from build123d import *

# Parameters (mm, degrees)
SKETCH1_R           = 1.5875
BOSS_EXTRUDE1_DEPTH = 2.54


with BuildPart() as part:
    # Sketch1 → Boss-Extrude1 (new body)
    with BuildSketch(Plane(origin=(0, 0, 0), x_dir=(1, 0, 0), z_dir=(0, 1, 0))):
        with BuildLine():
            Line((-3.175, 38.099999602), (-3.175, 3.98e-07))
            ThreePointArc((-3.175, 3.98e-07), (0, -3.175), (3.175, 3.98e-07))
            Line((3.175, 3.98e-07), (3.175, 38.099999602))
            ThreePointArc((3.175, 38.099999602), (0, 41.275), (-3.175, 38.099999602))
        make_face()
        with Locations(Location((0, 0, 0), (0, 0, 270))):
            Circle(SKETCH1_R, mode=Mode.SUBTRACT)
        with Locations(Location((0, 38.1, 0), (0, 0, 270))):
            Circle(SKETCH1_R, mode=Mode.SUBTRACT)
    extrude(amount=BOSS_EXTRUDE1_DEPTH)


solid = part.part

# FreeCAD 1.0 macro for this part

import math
import FreeCAD as App
import Part
import Sketcher
Q = App.Units.Quantity

doc = App.newDocument("Part")
body = doc.addObject("PartDesign::Body", "Body")

sketch1 = body.newObject("Sketcher::SketchObject", "Sketch")
sketch1.AttachmentSupport = (doc.getObject("XZ_Plane"), [""])
sketch1.MapMode = "FlatFace"
sketch1.addGeometry([
    Part.LineSegment(App.Vector(-3.2, -38.1, 0), App.Vector(-3.2, 0, 0)),
    Part.ArcOfCircle(Part.Circle(App.Vector(0, 0, 0), App.Vector(0, 0, 1), 3.2), math.radians(0), math.radians(180)),
    Part.LineSegment(App.Vector(3.2, 0, 0), App.Vector(3.2, -38.1, 0)),
    Part.ArcOfCircle(Part.Circle(App.Vector(0, -38.1, 0), App.Vector(0, 0, 1), 3.2), math.radians(180), math.radians(360)),
    Part.Circle(App.Vector(0, 0, 0), App.Vector(0, 0, 1), 1.6),
    Part.Circle(App.Vector(0, -38.1, 0), App.Vector(0, 0, 1), 1.6),
], False)
sketch1.addConstraint([
    Sketcher.Constraint("Tangent", 0, 2, 1, 2),
    Sketcher.Constraint("Tangent", 1, 1, 2, 1),
    Sketcher.Constraint("Tangent", 2, 2, 3, 2),
    Sketcher.Constraint("Tangent", 3, 1, 0, 1),
    Sketcher.Constraint("Vertical", 0),
    Sketcher.Constraint("Vertical", 2),
    Sketcher.Constraint("Coincident", 1, 3, -1, 1),
    Sketcher.Constraint("Coincident", 4, 3, -1, 1),
    Sketcher.Constraint("Coincident", 5, 3, 3, 3),
    Sketcher.Constraint("Equal", 4, 5),
    Sketcher.Constraint("Diameter", 4, Q("0.125 in")),
    Sketcher.Constraint("DistanceY", 0, 1, 0, 2, Q("1.5 in")),
    Sketcher.Constraint("Radius", 1, Q("0.125 in")),
])
pad1 = body.newObject("PartDesign::Pad", "Pad")
pad1.Profile = sketch1
pad1.Length = Q("0.1 in")
pad1.Reversed = True

doc.recompute()
